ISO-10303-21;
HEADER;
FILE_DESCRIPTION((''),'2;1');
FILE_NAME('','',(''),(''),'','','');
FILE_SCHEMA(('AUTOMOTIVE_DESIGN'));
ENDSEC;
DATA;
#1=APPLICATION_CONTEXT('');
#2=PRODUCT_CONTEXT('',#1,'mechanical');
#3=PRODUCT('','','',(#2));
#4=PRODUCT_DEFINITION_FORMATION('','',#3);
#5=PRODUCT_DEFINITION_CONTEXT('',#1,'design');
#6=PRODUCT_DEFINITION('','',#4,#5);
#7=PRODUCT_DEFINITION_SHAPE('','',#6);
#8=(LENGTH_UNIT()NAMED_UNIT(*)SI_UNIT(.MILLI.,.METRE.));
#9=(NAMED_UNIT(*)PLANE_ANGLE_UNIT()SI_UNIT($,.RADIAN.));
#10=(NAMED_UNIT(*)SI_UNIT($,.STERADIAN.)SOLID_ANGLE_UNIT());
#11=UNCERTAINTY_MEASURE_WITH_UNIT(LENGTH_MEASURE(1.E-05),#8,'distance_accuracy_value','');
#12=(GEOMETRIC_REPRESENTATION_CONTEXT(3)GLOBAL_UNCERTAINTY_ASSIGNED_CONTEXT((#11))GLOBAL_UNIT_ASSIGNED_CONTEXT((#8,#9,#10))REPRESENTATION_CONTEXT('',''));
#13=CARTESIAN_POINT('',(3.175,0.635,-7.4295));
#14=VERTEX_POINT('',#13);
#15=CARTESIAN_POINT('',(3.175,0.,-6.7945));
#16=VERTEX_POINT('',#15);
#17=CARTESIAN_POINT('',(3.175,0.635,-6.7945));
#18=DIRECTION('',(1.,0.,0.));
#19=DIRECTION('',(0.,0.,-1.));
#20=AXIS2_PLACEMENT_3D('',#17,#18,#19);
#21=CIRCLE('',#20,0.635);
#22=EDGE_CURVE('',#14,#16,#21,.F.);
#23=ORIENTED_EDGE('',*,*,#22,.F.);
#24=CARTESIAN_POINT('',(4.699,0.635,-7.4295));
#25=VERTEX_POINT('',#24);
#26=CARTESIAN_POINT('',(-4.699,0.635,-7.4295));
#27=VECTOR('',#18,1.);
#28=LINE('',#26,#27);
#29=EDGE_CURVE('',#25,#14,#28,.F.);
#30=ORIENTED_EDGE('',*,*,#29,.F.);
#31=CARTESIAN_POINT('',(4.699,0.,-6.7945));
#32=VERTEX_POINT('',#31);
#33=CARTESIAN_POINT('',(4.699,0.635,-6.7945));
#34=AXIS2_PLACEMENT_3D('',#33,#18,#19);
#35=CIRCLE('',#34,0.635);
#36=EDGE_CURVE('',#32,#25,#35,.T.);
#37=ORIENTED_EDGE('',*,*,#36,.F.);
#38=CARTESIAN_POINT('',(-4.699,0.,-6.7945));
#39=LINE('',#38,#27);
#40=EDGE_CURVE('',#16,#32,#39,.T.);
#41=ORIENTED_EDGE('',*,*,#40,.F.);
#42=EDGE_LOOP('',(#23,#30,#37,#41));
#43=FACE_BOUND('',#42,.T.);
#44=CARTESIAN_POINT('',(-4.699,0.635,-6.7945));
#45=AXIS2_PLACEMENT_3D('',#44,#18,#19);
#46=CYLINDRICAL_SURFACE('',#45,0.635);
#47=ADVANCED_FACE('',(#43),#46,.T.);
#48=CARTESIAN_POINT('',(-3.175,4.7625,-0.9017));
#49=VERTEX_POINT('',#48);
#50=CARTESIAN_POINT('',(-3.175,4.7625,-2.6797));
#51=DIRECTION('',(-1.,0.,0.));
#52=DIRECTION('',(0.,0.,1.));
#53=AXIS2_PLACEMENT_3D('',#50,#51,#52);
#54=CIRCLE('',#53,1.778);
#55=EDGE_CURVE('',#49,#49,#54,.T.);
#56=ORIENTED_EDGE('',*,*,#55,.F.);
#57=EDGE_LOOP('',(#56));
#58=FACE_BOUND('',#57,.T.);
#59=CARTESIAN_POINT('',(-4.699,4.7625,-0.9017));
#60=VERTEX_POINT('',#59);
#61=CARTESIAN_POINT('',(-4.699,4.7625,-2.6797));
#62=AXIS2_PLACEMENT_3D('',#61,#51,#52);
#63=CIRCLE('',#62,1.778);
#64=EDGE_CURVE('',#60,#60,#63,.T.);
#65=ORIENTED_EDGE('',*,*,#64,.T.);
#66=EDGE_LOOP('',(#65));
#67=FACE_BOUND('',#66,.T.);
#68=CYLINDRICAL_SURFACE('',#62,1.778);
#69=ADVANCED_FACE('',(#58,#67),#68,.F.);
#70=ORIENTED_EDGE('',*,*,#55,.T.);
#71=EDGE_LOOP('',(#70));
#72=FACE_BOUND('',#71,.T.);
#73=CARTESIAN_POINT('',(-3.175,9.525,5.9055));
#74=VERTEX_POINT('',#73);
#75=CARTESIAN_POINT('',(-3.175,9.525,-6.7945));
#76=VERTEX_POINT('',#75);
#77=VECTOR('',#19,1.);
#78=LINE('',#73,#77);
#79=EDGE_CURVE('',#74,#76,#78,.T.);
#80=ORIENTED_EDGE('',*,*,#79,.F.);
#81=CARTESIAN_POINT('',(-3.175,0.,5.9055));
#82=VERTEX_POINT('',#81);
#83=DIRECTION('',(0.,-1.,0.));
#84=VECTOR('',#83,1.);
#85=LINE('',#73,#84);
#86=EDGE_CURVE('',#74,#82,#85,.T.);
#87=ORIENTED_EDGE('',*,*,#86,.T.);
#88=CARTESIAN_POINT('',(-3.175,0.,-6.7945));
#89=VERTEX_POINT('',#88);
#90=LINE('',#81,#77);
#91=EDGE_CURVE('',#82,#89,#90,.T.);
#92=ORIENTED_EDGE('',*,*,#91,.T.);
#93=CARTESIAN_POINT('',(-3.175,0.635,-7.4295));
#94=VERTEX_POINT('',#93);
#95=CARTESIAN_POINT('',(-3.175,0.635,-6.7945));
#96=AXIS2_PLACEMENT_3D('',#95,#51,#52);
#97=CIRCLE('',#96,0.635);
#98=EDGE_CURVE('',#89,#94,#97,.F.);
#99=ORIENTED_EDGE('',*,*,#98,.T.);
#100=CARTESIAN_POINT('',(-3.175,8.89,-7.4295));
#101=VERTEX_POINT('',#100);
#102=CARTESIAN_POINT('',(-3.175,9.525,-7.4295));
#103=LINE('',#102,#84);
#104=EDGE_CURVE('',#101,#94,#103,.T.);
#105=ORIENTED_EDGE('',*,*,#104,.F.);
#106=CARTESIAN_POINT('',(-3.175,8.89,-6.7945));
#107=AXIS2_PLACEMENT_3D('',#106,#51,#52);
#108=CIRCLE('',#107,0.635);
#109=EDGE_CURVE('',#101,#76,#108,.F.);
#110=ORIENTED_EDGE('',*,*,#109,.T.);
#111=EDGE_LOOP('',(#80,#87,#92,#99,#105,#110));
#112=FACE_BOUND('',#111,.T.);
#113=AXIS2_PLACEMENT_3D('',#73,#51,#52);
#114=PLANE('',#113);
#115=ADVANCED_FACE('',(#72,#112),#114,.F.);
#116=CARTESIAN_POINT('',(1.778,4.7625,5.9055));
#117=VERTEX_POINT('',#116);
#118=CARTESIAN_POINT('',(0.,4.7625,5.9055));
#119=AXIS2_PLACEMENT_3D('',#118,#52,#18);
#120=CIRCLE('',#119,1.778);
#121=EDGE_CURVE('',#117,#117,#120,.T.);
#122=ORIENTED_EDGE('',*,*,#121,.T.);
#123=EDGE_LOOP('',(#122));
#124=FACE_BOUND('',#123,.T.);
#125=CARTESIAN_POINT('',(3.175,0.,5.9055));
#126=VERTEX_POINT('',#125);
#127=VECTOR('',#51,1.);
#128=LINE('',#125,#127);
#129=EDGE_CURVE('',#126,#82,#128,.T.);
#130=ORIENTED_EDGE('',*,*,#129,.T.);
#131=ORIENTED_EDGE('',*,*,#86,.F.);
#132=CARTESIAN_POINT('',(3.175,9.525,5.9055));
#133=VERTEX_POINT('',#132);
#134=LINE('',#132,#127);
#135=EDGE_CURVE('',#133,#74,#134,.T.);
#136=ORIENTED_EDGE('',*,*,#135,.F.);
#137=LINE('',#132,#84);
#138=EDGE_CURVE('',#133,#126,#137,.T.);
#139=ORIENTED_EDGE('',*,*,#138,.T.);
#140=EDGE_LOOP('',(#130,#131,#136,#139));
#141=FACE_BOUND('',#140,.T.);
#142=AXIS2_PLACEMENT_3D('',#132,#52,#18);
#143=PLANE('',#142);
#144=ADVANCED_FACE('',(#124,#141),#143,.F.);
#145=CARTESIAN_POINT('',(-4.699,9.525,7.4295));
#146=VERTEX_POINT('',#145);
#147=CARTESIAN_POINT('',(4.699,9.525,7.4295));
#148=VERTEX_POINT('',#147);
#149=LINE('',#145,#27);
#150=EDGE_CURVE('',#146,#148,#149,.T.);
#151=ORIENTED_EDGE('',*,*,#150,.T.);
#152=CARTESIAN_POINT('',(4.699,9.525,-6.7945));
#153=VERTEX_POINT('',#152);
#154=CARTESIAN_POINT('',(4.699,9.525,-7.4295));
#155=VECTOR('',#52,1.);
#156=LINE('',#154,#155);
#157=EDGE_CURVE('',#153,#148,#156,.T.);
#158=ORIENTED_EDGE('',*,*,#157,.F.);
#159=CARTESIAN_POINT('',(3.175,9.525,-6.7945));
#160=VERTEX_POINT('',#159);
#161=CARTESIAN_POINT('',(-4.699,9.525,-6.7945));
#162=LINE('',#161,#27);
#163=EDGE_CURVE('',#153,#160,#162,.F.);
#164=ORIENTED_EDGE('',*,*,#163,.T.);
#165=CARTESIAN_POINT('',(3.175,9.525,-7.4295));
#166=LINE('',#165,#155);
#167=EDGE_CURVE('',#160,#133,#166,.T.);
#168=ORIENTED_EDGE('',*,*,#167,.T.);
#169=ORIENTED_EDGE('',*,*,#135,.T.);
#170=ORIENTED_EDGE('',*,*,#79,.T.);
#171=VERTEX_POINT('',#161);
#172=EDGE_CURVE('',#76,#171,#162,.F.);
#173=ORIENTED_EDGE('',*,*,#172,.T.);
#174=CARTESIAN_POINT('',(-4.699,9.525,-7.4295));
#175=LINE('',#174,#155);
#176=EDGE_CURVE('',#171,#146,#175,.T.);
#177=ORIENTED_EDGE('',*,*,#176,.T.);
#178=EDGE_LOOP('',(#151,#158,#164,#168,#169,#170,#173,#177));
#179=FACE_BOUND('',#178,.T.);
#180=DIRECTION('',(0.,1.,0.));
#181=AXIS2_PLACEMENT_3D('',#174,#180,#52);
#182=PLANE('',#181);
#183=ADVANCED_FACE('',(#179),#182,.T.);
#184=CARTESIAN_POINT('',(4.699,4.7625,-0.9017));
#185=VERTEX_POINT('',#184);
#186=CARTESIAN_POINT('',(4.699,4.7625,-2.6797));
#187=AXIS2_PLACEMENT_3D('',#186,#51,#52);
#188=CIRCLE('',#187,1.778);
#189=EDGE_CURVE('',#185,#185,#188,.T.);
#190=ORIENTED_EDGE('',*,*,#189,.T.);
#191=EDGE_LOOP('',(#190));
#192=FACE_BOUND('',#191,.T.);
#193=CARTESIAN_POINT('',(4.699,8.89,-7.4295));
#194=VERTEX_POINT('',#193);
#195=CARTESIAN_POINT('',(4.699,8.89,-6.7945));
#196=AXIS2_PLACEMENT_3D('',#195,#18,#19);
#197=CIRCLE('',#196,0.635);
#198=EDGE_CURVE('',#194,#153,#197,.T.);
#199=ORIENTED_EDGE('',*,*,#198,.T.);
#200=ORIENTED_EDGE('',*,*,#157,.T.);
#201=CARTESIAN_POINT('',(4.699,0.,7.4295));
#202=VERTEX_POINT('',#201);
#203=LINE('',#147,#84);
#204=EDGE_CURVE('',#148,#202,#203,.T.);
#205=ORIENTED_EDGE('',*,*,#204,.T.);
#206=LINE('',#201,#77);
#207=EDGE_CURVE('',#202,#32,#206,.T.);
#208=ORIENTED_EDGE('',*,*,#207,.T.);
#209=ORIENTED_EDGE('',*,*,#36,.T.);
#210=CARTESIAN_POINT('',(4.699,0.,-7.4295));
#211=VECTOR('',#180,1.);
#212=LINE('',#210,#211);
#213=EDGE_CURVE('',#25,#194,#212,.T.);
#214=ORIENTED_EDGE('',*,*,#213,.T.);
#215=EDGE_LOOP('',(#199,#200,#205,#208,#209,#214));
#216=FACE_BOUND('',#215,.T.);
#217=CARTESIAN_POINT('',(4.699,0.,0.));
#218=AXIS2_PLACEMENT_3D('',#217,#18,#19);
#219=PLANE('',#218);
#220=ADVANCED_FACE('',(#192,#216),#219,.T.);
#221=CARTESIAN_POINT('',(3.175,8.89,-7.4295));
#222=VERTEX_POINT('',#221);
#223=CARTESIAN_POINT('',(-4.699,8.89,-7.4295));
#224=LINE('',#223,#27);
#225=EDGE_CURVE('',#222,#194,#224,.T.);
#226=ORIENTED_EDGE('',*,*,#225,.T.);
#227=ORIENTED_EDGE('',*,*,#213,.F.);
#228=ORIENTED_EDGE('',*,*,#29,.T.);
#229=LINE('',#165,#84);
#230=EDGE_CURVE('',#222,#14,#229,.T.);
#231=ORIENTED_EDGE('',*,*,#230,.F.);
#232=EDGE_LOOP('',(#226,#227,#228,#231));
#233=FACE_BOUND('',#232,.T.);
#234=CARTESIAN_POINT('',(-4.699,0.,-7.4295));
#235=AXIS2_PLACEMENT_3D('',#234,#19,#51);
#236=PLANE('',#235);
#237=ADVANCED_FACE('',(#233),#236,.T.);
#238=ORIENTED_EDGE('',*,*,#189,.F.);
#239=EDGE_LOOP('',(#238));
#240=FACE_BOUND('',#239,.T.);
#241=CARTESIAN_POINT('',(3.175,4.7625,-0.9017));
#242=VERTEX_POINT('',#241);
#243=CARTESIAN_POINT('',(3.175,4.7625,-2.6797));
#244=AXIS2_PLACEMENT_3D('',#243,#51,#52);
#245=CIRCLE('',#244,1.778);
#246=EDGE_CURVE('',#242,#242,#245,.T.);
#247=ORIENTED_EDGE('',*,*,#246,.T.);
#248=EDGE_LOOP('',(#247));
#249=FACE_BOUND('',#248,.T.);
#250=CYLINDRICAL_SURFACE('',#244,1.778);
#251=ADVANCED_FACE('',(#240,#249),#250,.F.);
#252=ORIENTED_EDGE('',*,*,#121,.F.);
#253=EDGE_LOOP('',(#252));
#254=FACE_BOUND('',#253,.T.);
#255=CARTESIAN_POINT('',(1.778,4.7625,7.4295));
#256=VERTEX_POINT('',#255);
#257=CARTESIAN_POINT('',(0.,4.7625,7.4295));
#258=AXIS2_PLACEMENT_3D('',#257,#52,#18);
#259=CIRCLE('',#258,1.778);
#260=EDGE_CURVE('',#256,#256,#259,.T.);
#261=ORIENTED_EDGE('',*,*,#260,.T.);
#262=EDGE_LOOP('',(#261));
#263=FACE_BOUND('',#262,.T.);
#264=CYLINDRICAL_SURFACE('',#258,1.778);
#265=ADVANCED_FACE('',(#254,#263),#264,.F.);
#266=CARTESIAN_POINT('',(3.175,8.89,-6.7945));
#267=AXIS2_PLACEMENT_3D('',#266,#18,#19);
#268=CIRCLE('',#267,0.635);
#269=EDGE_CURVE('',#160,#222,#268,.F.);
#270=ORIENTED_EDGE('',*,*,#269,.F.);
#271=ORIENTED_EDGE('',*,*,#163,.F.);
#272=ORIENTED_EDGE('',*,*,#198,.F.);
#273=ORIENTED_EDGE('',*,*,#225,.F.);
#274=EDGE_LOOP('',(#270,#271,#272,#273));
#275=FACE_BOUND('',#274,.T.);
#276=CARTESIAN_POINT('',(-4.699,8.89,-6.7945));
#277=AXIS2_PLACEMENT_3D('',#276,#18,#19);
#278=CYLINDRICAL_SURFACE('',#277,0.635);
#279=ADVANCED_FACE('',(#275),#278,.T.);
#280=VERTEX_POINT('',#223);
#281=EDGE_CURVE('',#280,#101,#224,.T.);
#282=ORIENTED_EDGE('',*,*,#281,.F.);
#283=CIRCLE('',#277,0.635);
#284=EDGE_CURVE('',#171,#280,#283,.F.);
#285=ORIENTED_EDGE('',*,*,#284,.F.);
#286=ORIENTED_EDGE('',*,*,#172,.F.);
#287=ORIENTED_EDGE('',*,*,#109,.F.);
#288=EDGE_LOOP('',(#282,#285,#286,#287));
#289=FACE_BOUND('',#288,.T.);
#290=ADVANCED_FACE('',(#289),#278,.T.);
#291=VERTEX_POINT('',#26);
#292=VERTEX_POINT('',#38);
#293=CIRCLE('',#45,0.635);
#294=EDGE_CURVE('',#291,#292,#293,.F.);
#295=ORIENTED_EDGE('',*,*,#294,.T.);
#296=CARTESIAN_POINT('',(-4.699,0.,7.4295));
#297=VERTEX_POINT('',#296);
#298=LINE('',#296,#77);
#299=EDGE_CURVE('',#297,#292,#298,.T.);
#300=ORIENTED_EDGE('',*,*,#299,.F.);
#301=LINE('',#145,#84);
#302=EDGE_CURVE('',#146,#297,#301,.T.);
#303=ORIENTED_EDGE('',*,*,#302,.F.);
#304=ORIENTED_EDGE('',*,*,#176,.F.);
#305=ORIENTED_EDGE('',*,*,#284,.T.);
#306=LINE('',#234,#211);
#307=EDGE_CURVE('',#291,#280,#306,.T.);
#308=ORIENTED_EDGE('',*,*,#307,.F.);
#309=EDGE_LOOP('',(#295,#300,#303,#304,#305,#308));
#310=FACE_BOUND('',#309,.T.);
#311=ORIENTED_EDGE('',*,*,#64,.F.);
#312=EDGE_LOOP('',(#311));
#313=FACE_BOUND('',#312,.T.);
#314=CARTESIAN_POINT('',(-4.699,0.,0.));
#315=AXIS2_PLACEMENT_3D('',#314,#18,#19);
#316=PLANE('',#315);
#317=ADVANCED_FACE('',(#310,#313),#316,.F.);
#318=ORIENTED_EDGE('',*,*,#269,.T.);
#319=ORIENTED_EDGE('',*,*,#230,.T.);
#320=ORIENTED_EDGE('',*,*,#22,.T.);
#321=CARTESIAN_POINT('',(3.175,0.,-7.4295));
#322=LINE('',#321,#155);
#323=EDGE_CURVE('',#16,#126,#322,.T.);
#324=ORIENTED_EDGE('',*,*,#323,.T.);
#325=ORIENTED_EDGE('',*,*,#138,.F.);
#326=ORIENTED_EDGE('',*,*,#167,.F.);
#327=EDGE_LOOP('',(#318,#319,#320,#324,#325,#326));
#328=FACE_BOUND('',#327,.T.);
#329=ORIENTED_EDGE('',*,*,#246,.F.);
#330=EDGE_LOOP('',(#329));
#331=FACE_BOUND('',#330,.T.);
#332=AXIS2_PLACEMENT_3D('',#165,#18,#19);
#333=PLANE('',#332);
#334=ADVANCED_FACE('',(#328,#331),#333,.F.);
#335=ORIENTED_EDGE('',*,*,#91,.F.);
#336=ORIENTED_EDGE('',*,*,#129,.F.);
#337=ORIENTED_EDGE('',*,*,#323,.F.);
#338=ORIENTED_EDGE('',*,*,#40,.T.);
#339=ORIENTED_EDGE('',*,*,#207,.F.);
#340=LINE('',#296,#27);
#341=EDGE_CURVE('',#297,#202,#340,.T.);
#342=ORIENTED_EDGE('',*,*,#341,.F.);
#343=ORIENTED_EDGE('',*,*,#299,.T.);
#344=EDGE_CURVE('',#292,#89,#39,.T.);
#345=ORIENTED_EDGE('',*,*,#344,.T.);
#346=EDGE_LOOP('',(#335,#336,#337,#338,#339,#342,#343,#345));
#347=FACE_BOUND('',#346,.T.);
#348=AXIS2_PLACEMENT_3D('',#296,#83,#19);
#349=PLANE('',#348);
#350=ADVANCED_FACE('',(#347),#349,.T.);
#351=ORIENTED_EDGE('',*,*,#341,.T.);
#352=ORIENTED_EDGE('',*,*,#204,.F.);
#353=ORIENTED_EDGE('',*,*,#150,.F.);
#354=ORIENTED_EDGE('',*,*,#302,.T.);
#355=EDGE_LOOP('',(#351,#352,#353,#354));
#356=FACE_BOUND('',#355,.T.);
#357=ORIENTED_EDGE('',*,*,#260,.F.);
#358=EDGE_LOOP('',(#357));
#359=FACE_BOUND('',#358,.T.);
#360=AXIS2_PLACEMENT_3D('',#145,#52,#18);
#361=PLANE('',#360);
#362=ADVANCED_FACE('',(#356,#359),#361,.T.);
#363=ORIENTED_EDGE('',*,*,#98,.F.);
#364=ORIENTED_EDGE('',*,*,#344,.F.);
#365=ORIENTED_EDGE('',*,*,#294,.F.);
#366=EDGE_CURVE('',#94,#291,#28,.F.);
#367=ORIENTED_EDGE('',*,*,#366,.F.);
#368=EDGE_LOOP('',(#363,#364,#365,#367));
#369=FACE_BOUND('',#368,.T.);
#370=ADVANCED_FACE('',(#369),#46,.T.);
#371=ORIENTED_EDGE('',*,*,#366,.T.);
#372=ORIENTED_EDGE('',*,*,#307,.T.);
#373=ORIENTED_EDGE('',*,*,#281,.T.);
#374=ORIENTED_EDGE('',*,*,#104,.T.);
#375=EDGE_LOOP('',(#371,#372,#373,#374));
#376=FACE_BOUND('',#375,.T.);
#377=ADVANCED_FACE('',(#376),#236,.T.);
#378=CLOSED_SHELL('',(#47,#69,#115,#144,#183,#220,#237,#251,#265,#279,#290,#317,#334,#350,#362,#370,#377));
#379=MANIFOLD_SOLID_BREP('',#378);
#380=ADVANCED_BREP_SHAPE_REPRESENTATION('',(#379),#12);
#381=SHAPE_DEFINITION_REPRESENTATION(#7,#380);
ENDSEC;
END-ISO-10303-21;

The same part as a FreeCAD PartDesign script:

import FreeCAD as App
import Part
import Sketcher
Q = App.Units.Quantity


def edges_at(feature, points):
    """Names of the edges that pass closest to the given points."""
    edges = feature.Shape.Edges
    near = lambda p: min(range(len(edges)), key=lambda i: edges[i].distToShape(Part.Vertex(*p))[0])
    return sorted({f"Edge{near(p) + 1}" for p in points})


def add_polygon(sketch, points):
    """Adds a closed chain of lines whose ends are joined by coincident constraints."""
    first, n = sketch.GeometryCount, len(points)
    for a, b in zip(points, points[1:] + points[:1]):
        sketch.addGeometry(Part.LineSegment(App.Vector(*a, 0), App.Vector(*b, 0)), False)
    for i in range(n):
        sketch.addConstraint(Sketcher.Constraint("Coincident", first + i, 2, first + (i + 1) % n, 1))

doc = App.newDocument("Part")
params = doc.addObject("Spreadsheet::Sheet", "Params")
for row, (alias, value) in enumerate([
    ("sketch1_width", "0.375 in"),
    ("sketch1_height", "0.585 in"),
    ("pad1_length", "0.37 in"),
    ("sketch2_width", "0.25 in"),
    ("sketch2_height", "0.525 in"),
    ("sketch3_diameter", "0.14 in"),
    ("hole_diameter", "0.14 in"),
    ("hole_depth", "0.06 in"),
    ("sketch4_diameter", "0.14 in"),
    ("hole2_diameter", "0.14 in"),
    ("hole2_depth", "0.585 in"),
    ("sketch5_diameter", "0.14 in"),
    ("hole3_diameter", "0.14 in"),
    ("fillet_radius", "0.025 in"),
], start=1):
    params.set(f"A{row}", alias)
    params.set(f"B{row}", "=" + value)
    params.setAlias(f"B{row}", alias)

body = doc.addObject("PartDesign::Body", "Body")

# Sketch on YZ plane
sketch1 = doc.addObject("Sketcher::SketchObject", "Sketch")
body.addObject(sketch1)
sketch1.AttachmentSupport = (doc.YZ_Plane, [""])
sketch1.MapMode = "FlatFace"
sketch1.AttachmentOffset = App.Placement(App.Vector(0, 0, 0.185 * 25.4), App.Rotation())
add_polygon(sketch1, [(10, 7), (0, 7), (0, -7), (10, -7)])  # lines 0-3
sketch1.addConstraint(Sketcher.Constraint("Horizontal", 0))
sketch1.addConstraint(Sketcher.Constraint("Vertical", 1))
sketch1.addConstraint(Sketcher.Constraint("Horizontal", 2))
sketch1.addConstraint(Sketcher.Constraint("Vertical", 3))
sketch1.addConstraint(Sketcher.Constraint("Symmetric", 0, 2, 1, 2, -1, 1))
sketch1.addConstraint(Sketcher.Constraint("DistanceX", 0, 2, 0, 1, Q("0.375 in")))
sketch1.addConstraint(Sketcher.Constraint("DistanceY", 1, 2, 1, 1, Q("0.585 in")))
sketch1.setExpression("Constraints[9]", "Params.sketch1_width")
sketch1.setExpression("Constraints[10]", "Params.sketch1_height")
pad1 = doc.addObject("PartDesign::Pad", "Pad")
body.addObject(pad1)
pad1.Profile = sketch1
pad1.setExpression("Length", "Params.pad1_length")
pad1.Reversed = True

# Sketch on XZ plane
sketch2 = doc.addObject("Sketcher::SketchObject", "Sketch001")
body.addObject(sketch2)
sketch2.AttachmentSupport = (doc.XZ_Plane, [""])
sketch2.MapMode = "FlatFace"
add_polygon(sketch2, [(-3, 6), (-3, -7), (3, -7), (3, 6)])  # lines 0-3
sketch2.addConstraint(Sketcher.Constraint("Vertical", 0))
sketch2.addConstraint(Sketcher.Constraint("Horizontal", 1))
sketch2.addConstraint(Sketcher.Constraint("Vertical", 2))
sketch2.addConstraint(Sketcher.Constraint("Horizontal", 3))
sketch2.addConstraint(Sketcher.Constraint("DistanceX", 1, 1, 1, 2, Q("0.25 in")))
sketch2.addConstraint(Sketcher.Constraint("DistanceY", 0, 2, 0, 1, Q("0.525 in")))
sketch2.addConstraint(Sketcher.Constraint("DistanceX", 0, 2, -1, 1, Q("0.125 in")))
sketch2.addConstraint(Sketcher.Constraint("DistanceY", 0, 2, -1, 1, Q("0.2925 in")))
sketch2.setExpression("Constraints[8]", "Params.sketch2_width")
sketch2.setExpression("Constraints[9]", "Params.sketch2_height")
pocket1 = doc.addObject("PartDesign::Pocket", "Pocket")
body.addObject(pocket1)
pocket1.Profile = sketch2
pocket1.Type = "ThroughAll"

# Sketch on YZ plane
sketch3 = doc.addObject("Sketcher::SketchObject", "Sketch002")
body.addObject(sketch3)
sketch3.AttachmentSupport = (doc.YZ_Plane, [""])
sketch3.MapMode = "FlatFace"
sketch3.AttachmentOffset = App.Placement(App.Vector(0, 0, -0.185 * 25.4), App.Rotation())
sketch3.addGeometry(Part.Circle(App.Vector(4.8, -2.7, 0), App.Vector(0, 0, 1), 1.8), False)
sketch3.addConstraint(Sketcher.Constraint("Diameter", 0, Q("0.14 in")))
sketch3.addConstraint(Sketcher.Constraint("DistanceX", -1, 1, 0, 3, Q("0.1875 in")))
sketch3.addConstraint(Sketcher.Constraint("DistanceY", 0, 3, -1, 1, Q("0.1055 in")))
sketch3.setExpression("Constraints[0]", "Params.sketch3_diameter")
doc.recompute()
hole = doc.addObject("PartDesign::Hole", "Hole")
body.addObject(hole)
hole.Profile = sketch3
hole.ThreadType = "None"
hole.setExpression("Diameter", "Params.hole_diameter")
hole.DepthType = "Dimension"
hole.setExpression("Depth", "Params.hole_depth")
hole.DrillPoint = "Flat"
hole.Reversed = True

# Sketch on XY plane
sketch4 = doc.addObject("Sketcher::SketchObject", "Sketch003")
body.addObject(sketch4)
sketch4.AttachmentSupport = (doc.XY_Plane, [""])
sketch4.MapMode = "FlatFace"
sketch4.AttachmentOffset = App.Placement(App.Vector(0, 0, 0.2925 * 25.4), App.Rotation())
sketch4.addGeometry(Part.Circle(App.Vector(0, 4.8, 0), App.Vector(0, 0, 1), 1.8), False)
sketch4.addConstraint(Sketcher.Constraint("PointOnObject", 0, 3, -2))
sketch4.addConstraint(Sketcher.Constraint("Diameter", 0, Q("0.14 in")))
sketch4.addConstraint(Sketcher.Constraint("DistanceY", -1, 1, 0, 3, Q("0.1875 in")))
sketch4.setExpression("Constraints[1]", "Params.sketch4_diameter")
doc.recompute()
hole2 = doc.addObject("PartDesign::Hole", "Hole001")
body.addObject(hole2)
hole2.Profile = sketch4
hole2.ThreadType = "None"
hole2.setExpression("Diameter", "Params.hole2_diameter")
hole2.DepthType = "Dimension"
hole2.setExpression("Depth", "Params.hole2_depth")
hole2.DrillPoint = "Flat"

# Sketch on YZ plane
sketch5 = doc.addObject("Sketcher::SketchObject", "Sketch004")
body.addObject(sketch5)
sketch5.AttachmentSupport = (doc.YZ_Plane, [""])
sketch5.MapMode = "FlatFace"
sketch5.AttachmentOffset = App.Placement(App.Vector(0, 0, 0.125 * 25.4), App.Rotation())
sketch5.addGeometry(Part.Circle(App.Vector(4.8, -2.7, 0), App.Vector(0, 0, 1), 1.8), False)
sketch5.addConstraint(Sketcher.Constraint("Diameter", 0, Q("0.14 in")))
sketch5.addConstraint(Sketcher.Constraint("DistanceX", -1, 1, 0, 3, Q("0.1875 in")))
sketch5.addConstraint(Sketcher.Constraint("DistanceY", 0, 3, -1, 1, Q("0.1055 in")))
sketch5.setExpression("Constraints[0]", "Params.sketch5_diameter")
doc.recompute()
hole3 = doc.addObject("PartDesign::Hole", "Hole002")
body.addObject(hole3)
hole3.Profile = sketch5
hole3.ThreadType = "None"
hole3.setExpression("Diameter", "Params.hole3_diameter")
hole3.DepthType = "ThroughAll"
hole3.Reversed = True
doc.recompute()

fillet = doc.addObject("PartDesign::Fillet", "Fillet")
body.addObject(fillet)
fillet.Base = (hole3, edges_at(hole3, [
    (3.937, 0, -7.429),
    (3.937, 9.525, -7.429),
    (-3.937, 9.525, -7.429),
    (-3.937, 0, -7.429),
]))
fillet.setExpression("Radius", "Params.fillet_radius")

doc.recompute()
